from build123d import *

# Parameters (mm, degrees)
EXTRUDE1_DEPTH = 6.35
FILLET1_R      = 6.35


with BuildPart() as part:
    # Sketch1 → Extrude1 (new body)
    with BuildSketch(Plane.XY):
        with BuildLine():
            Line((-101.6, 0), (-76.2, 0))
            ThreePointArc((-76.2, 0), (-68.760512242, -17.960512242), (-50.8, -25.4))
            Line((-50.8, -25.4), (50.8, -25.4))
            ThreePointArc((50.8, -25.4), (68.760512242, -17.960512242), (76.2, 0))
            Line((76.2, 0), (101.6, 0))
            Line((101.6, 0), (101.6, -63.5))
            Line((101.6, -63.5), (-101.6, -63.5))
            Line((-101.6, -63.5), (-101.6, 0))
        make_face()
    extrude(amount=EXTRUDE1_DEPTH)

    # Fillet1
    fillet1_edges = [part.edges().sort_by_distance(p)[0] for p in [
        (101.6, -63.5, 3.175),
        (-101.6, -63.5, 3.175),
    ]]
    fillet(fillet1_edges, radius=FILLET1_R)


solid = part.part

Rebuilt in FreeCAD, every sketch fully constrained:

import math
import FreeCAD as App
import Part
import Sketcher

V = App.Vector
Q = App.Units.Quantity


def edges_at(feature, points):
    """Names of the edges that pass closest to the given points."""
    edges = feature.Shape.Edges
    near = lambda p: min(range(len(edges)), key=lambda i: edges[i].distToShape(Part.Vertex(*p))[0])
    return sorted({f"Edge{near(p) + 1}" for p in points})

doc = App.newDocument("Part")
body = doc.addObject("PartDesign::Body", "Body")

# Sketch on XY plane
sketch1 = body.newObject("Sketcher::SketchObject", "Sketch")
sketch1.AttachmentSupport = (doc.getObject("XY_Plane"), [""])
sketch1.MapMode = "FlatFace"
sketch1.addGeometry([
    Part.LineSegment(V(-76, 0, 0), V(-102, 0, 0)),  # 0
    Part.LineSegment(V(-102, 0, 0), V(-102, -64, 0)),  # 1
    Part.LineSegment(V(-102, -64, 0), V(102, -64, 0)),  # 2
    Part.LineSegment(V(102, -64, 0), V(102, 0, 0)),  # 3
    Part.LineSegment(V(102, 0, 0), V(76, 0, 0)),  # 4
    Part.ArcOfCircle(Part.Circle(V(51, 0, 0), V(0, 0, 1), 25), math.radians(-90), math.radians(0)),  # 5
    Part.LineSegment(V(51, -25, 0), V(-51, -25, 0)),  # 6
    Part.ArcOfCircle(Part.Circle(V(-51, 0, 0), V(0, 0, 1), 25), math.radians(180), math.radians(270)),  # 7
], False)
sketch1.addConstraint([
    Sketcher.Constraint("Coincident", 0, 2, 1, 1),
    Sketcher.Constraint("Coincident", 1, 2, 2, 1),
    Sketcher.Constraint("Coincident", 2, 2, 3, 1),
    Sketcher.Constraint("Coincident", 3, 2, 4, 1),
    Sketcher.Constraint("Coincident", 4, 2, 5, 2),
    Sketcher.Constraint("Tangent", 5, 1, 6, 1),
    Sketcher.Constraint("Tangent", 6, 2, 7, 2),
    Sketcher.Constraint("Coincident", 7, 1, 0, 1),
    Sketcher.Constraint("Horizontal", 0),
    Sketcher.Constraint("Vertical", 1),
    Sketcher.Constraint("Horizontal", 2),
    Sketcher.Constraint("Vertical", 3),
    Sketcher.Constraint("Horizontal", 4),
    Sketcher.Constraint("Horizontal", 6),
    Sketcher.Constraint("Equal", 5, 7),
    Sketcher.Constraint("Symmetric", 5, 3, 7, 3, -1, 1),
    Sketcher.Constraint("Symmetric", 0, 2, 3, 2, -1, 1),
    Sketcher.Constraint("PointOnObject", 0, 2, -1),
    Sketcher.Constraint("Radius", 5, Q("1 in")),
    Sketcher.Constraint("DistanceX", 0, 2, 0, 1, Q("1 in")),
    Sketcher.Constraint("DistanceX", 2, 1, 2, 2, Q("8 in")),
    Sketcher.Constraint("DistanceY", 1, 2, 1, 1, Q("2.5 in")),
])
pad1 = body.newObject("PartDesign::Pad", "Pad")
pad1.Profile = sketch1
pad1.Length = Q("0.25 in")
doc.recompute()

fillet = body.newObject("PartDesign::Fillet", "Fillet")
fillet.Base = (pad1, edges_at(pad1, [(101.6, -63.5, 3.175), (-101.6, -63.5, 3.175)]))
fillet.Radius = Q("0.25 in")

doc.recompute()
